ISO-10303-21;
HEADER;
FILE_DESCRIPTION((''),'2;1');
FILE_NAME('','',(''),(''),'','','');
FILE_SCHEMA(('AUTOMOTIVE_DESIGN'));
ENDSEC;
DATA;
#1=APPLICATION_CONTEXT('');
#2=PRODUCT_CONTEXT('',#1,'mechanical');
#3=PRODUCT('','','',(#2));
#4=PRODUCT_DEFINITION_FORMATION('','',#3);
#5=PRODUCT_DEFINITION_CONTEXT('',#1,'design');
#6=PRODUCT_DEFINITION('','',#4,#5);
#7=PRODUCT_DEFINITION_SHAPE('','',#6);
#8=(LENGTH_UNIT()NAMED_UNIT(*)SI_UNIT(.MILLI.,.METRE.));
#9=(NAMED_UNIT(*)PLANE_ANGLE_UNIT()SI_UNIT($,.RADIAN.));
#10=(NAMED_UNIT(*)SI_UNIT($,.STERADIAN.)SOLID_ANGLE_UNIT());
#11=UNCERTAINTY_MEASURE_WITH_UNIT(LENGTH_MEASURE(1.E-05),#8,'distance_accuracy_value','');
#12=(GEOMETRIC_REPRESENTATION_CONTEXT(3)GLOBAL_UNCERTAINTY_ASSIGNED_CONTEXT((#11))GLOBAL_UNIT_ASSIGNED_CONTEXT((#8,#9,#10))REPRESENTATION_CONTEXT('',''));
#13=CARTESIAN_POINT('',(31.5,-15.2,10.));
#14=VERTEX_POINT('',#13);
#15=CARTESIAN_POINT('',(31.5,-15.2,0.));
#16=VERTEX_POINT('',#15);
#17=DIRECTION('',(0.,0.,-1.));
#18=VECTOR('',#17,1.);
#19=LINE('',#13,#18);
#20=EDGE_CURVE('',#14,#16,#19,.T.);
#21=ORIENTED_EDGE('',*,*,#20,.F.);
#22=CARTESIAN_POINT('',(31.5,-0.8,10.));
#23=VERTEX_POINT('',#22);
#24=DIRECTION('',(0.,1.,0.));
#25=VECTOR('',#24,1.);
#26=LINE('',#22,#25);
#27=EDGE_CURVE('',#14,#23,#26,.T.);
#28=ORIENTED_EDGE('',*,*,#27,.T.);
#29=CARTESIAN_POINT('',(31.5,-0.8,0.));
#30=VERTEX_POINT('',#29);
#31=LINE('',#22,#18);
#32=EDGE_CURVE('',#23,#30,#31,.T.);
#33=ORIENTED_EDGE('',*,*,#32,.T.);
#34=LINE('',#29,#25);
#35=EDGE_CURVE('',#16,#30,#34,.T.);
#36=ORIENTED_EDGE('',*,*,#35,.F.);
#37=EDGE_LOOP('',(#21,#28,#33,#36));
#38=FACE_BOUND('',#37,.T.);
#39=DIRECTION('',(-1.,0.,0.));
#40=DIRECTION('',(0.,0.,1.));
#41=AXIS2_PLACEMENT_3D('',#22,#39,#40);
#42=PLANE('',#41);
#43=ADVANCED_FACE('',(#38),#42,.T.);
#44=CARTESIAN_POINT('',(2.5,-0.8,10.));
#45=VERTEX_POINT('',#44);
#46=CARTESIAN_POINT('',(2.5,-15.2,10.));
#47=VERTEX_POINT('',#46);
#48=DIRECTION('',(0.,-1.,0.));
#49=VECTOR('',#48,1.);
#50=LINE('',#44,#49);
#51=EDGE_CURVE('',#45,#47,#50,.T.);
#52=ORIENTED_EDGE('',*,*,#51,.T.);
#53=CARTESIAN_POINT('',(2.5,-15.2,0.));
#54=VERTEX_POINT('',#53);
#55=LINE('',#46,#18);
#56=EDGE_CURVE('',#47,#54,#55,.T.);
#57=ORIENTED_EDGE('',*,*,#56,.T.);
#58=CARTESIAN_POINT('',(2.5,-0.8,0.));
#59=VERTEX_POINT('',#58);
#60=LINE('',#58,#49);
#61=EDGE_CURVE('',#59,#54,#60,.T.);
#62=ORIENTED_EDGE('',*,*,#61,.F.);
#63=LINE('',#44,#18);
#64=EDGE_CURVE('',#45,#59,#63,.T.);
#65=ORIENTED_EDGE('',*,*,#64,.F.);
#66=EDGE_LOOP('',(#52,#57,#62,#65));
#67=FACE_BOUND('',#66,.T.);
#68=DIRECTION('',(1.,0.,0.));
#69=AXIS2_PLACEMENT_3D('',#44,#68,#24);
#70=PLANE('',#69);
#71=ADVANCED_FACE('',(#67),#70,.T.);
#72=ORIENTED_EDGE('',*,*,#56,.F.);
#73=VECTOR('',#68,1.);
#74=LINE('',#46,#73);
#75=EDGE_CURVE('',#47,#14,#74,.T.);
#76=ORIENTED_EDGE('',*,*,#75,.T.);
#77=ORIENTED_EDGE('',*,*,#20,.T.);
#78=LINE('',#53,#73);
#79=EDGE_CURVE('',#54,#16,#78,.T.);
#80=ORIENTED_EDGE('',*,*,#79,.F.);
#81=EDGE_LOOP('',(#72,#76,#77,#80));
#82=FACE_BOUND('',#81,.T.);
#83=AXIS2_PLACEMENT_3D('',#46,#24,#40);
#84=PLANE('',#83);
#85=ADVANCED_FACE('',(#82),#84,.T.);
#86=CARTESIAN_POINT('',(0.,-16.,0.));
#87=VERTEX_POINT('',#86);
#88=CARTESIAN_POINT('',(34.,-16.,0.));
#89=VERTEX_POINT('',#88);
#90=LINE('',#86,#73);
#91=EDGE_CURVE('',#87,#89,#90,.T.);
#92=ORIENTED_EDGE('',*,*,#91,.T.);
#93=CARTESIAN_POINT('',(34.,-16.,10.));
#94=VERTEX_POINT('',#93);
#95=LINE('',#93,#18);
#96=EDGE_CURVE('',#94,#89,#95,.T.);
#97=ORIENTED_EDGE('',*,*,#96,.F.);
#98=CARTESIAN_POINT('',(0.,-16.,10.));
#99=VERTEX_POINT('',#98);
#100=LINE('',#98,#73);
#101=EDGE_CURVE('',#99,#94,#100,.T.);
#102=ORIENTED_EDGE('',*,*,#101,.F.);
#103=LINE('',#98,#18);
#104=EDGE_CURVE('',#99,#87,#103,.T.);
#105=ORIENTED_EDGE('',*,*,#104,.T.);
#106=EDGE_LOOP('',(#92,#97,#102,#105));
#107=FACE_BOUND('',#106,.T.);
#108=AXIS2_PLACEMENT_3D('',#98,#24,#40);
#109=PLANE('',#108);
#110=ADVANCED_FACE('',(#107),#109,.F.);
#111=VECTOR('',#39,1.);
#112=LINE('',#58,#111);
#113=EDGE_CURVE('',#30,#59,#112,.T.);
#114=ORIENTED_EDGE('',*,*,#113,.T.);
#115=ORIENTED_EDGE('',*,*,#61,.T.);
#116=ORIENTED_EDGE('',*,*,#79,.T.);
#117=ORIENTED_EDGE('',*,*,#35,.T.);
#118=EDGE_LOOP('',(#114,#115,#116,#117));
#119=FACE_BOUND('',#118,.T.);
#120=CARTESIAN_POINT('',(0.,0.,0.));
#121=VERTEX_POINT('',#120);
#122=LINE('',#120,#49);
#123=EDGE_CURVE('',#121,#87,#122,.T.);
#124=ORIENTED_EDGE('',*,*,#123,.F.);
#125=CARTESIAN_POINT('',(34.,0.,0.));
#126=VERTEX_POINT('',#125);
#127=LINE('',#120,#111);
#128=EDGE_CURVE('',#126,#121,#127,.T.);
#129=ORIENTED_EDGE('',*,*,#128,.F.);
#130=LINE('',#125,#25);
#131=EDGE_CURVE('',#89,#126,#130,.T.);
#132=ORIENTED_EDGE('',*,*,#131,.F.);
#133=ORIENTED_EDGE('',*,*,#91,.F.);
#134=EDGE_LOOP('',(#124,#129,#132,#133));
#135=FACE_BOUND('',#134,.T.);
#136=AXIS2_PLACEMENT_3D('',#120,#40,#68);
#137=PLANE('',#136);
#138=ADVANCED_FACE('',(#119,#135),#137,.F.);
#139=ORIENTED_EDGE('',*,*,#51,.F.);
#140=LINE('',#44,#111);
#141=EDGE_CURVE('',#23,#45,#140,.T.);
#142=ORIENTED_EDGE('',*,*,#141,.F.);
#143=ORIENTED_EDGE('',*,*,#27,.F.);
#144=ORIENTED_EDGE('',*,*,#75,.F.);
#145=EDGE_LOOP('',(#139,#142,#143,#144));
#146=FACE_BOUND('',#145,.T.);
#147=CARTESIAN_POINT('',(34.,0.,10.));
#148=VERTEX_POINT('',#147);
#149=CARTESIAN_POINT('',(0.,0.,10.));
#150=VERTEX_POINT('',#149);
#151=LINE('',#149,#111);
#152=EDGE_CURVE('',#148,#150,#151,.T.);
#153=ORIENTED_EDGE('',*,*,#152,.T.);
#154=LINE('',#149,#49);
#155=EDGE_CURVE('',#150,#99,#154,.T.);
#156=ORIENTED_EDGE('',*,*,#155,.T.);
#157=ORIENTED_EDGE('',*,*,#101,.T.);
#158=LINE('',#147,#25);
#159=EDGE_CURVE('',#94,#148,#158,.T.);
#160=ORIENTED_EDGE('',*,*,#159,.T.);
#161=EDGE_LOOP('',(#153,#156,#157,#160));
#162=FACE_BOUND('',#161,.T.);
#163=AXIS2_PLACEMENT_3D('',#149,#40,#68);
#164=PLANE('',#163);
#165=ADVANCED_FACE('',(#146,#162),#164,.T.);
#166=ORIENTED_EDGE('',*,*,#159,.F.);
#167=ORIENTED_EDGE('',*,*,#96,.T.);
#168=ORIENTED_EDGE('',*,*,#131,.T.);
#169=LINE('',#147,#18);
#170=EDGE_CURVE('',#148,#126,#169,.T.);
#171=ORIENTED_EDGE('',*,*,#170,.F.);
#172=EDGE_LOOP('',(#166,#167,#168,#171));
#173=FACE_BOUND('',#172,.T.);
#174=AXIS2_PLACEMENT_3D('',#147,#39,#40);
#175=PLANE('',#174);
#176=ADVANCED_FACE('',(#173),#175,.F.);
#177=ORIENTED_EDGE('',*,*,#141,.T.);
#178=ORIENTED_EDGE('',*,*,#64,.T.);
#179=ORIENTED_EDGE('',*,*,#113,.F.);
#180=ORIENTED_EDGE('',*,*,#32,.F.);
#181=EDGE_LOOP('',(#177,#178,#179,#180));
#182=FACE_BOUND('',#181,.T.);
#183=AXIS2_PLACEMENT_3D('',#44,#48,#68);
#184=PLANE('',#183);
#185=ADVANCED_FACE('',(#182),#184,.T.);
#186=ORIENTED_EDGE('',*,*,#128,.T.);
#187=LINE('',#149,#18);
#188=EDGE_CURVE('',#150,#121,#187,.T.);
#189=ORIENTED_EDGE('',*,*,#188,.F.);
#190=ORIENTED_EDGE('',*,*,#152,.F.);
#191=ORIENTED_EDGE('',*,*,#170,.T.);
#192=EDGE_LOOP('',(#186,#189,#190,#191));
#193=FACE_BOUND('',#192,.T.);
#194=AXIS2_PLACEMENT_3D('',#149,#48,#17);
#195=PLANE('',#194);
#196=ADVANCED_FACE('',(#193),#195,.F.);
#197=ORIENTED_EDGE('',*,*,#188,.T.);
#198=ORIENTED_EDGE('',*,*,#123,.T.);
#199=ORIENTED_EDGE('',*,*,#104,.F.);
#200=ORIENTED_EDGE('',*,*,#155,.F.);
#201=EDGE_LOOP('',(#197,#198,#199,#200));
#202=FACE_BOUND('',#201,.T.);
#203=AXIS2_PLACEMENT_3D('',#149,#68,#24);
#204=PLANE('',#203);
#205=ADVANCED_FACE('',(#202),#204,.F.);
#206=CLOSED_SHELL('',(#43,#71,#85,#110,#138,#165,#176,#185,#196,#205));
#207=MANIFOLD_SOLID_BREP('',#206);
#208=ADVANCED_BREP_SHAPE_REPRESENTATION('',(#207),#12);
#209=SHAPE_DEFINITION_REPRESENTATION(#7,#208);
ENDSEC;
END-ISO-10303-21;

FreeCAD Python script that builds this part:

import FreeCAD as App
import Part
import Sketcher
Q = App.Units.Quantity

doc = App.newDocument("Part")
body = doc.addObject("PartDesign::Body", "Body")

sketch1 = body.newObject("Sketcher::SketchObject", "Sketch")
sketch1.AttachmentSupport = (doc.getObject("XY_Plane"), [""])
sketch1.MapMode = "FlatFace"
sketch1.addGeometry([
    Part.LineSegment(App.Vector(0, 0, 0), App.Vector(0, -16, 0)),
    Part.LineSegment(App.Vector(0, -16, 0), App.Vector(34, -16, 0)),
    Part.LineSegment(App.Vector(34, -16, 0), App.Vector(34, 0, 0)),
    Part.LineSegment(App.Vector(34, 0, 0), App.Vector(0, 0, 0)),
    Part.LineSegment(App.Vector(31.5, -15.2, 0), App.Vector(2.5, -15.2, 0)),
    Part.LineSegment(App.Vector(2.5, -15.2, 0), App.Vector(2.5, -0.8, 0)),
    Part.LineSegment(App.Vector(2.5, -0.8, 0), App.Vector(31.5, -0.8, 0)),
    Part.LineSegment(App.Vector(31.5, -0.8, 0), App.Vector(31.5, -15.2, 0)),
], False)
sketch1.addConstraint([
    Sketcher.Constraint("Coincident", 0, 2, 1, 1),
    Sketcher.Constraint("Coincident", 1, 2, 2, 1),
    Sketcher.Constraint("Coincident", 2, 2, 3, 1),
    Sketcher.Constraint("Coincident", 3, 2, 0, 1),
    Sketcher.Constraint("Coincident", 4, 2, 5, 1),
    Sketcher.Constraint("Coincident", 5, 2, 6, 1),
    Sketcher.Constraint("Coincident", 6, 2, 7, 1),
    Sketcher.Constraint("Coincident", 7, 2, 4, 1),
    Sketcher.Constraint("Vertical", 0),
    Sketcher.Constraint("Horizontal", 1),
    Sketcher.Constraint("Vertical", 2),
    Sketcher.Constraint("Horizontal", 3),
    Sketcher.Constraint("Horizontal", 4),
    Sketcher.Constraint("Vertical", 5),
    Sketcher.Constraint("Horizontal", 6),
    Sketcher.Constraint("Vertical", 7),
    Sketcher.Constraint("Coincident", 3, 2, -1, 1),
    Sketcher.Constraint("DistanceX", 1, 1, 1, 2, Q("34 mm")),
    Sketcher.Constraint("DistanceX", 4, 2, 4, 1, Q("29 mm")),
    Sketcher.Constraint("DistanceY", 0, 2, 0, 1, Q("16 mm")),
    Sketcher.Constraint("DistanceY", 5, 1, 5, 2, Q("14.4 mm")),
    Sketcher.Constraint("DistanceX", -1, 1, 4, 2, Q("2.5 mm")),
    Sketcher.Constraint("DistanceY", 4, 2, -1, 1, Q("15.2 mm")),
])
pad1 = body.newObject("PartDesign::Pad", "Pad")
pad1.Profile = sketch1
pad1.Length = 10

doc.recompute()
